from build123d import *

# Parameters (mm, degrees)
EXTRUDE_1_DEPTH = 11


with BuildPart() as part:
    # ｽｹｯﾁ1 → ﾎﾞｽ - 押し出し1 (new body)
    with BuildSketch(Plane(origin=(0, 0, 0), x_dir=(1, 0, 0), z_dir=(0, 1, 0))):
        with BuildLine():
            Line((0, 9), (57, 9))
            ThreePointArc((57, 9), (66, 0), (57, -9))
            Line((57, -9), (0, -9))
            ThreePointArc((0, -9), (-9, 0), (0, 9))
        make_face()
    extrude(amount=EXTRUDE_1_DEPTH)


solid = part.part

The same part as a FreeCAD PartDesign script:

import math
import FreeCAD as App
import Part
import Sketcher

doc = App.newDocument("Part")
body = doc.addObject("PartDesign::Body", "Body")

# Sketch on XZ plane
sketch1 = body.newObject("Sketcher::SketchObject", "Sketch")
sketch1.AttachmentSupport = (doc.getObject("XZ_Plane"), [""])
sketch1.MapMode = "FlatFace"
sketch1.addGeometry(Part.LineSegment(App.Vector(57, -9, 0), App.Vector(0, -9, 0)), False)
sketch1.addGeometry(Part.ArcOfCircle(Part.Circle(App.Vector(0, 0, 0), App.Vector(0, 0, 1), 9), math.radians(90), math.radians(270)), False)
sketch1.addGeometry(Part.LineSegment(App.Vector(0, 9, 0), App.Vector(57, 9, 0)), False)
sketch1.addGeometry(Part.ArcOfCircle(Part.Circle(App.Vector(57, 0, 0), App.Vector(0, 0, 1), 9), math.radians(-90), math.radians(90)), False)
sketch1.addConstraint(Sketcher.Constraint("Tangent", 0, 2, 1, 2))
sketch1.addConstraint(Sketcher.Constraint("Tangent", 1, 1, 2, 1))
sketch1.addConstraint(Sketcher.Constraint("Tangent", 2, 2, 3, 2))
sketch1.addConstraint(Sketcher.Constraint("Tangent", 3, 1, 0, 1))
sketch1.addConstraint(Sketcher.Constraint("Horizontal", 0))
sketch1.addConstraint(Sketcher.Constraint("Horizontal", 2))
sketch1.addConstraint(Sketcher.Constraint("Coincident", 1, 3, -1, 1))
sketch1.addConstraint(Sketcher.Constraint("Radius", 1, 9.0))
sketch1.addConstraint(Sketcher.Constraint("DistanceX", 0, 2, 0, 1, 57.0))
pad1 = body.newObject("PartDesign::Pad", "Pad")
pad1.Profile = sketch1
pad1.Length = 11
pad1.Reversed = True

doc.recompute()
